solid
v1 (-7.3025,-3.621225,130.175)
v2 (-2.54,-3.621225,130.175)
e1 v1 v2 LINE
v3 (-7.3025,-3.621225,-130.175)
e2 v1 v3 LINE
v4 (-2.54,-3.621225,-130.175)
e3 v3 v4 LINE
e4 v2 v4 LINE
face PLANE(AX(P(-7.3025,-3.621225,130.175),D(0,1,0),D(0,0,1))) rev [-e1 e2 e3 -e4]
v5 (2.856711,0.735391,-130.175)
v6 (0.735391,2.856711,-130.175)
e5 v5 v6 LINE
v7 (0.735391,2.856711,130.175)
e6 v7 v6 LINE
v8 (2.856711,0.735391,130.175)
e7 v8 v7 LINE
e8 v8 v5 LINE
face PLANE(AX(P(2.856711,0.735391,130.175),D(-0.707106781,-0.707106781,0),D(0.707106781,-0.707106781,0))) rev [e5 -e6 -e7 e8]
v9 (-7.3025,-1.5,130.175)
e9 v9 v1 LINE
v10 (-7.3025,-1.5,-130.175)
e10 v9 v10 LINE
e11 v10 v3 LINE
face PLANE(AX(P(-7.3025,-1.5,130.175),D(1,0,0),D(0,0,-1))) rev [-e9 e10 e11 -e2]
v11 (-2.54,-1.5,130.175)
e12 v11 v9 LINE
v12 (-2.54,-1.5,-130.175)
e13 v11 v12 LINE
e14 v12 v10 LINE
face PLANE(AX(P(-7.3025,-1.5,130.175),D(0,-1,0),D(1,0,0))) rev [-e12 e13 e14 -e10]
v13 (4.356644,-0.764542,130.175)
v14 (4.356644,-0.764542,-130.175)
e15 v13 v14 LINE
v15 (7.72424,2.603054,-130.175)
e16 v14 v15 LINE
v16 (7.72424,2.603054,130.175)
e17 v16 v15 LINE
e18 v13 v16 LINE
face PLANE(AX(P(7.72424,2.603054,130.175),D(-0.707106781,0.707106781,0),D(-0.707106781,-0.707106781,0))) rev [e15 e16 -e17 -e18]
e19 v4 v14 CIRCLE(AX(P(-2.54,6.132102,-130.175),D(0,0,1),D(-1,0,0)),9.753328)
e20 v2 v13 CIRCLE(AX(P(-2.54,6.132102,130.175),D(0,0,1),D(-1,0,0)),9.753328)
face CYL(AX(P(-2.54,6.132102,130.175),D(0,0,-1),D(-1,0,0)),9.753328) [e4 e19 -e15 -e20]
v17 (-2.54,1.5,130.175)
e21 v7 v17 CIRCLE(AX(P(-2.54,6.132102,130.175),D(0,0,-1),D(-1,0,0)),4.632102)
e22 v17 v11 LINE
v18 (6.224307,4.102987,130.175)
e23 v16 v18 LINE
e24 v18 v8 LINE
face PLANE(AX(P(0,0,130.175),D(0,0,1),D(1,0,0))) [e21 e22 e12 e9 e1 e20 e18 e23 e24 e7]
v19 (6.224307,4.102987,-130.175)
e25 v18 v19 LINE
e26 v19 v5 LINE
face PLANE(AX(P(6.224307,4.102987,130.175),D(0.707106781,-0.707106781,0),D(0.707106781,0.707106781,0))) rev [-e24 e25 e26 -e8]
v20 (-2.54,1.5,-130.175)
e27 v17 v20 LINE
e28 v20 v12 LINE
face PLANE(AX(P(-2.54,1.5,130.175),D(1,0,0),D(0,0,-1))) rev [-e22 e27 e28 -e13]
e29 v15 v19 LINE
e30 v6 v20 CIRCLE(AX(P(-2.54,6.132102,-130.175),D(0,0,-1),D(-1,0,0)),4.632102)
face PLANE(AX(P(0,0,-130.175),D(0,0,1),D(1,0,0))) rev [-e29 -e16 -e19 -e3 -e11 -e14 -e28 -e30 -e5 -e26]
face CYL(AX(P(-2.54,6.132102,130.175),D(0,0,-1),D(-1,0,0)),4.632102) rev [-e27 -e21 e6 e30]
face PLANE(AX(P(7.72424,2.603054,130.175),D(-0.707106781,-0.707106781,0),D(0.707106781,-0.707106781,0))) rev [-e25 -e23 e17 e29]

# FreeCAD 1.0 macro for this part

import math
import FreeCAD as App
import Part
import Sketcher
from FreeCAD import Vector
Q = App.Units.Quantity

doc = App.newDocument("Part")
body = doc.addObject("PartDesign::Body", "Body")

# Sketch on XY plane
sketch1 = body.newObject("Sketcher::SketchObject", "Sketch")
sketch1.AttachmentSupport = (doc.getObject("XY_Plane"), [""])
sketch1.MapMode = "FlatFace"
sketch1.addGeometry(Part.LineSegment(Vector(-7.3, -1.5, 0), Vector(-7.3, -3.6, 0)), False)
sketch1.addGeometry(Part.LineSegment(Vector(-7.3, -3.6, 0), Vector(-2.5, -3.6, 0)), False)
sketch1.addGeometry(Part.LineSegment(Vector(-2.5, -3.6, 0), Vector(-2.5, -1.5, 0)), False)
sketch1.addGeometry(Part.LineSegment(Vector(-2.5, -1.5, 0), Vector(-7.3, -1.5, 0)), False)
sketch1.addConstraint(Sketcher.Constraint("Coincident", 0, 2, 1, 1))
sketch1.addConstraint(Sketcher.Constraint("Coincident", 1, 2, 2, 1))
sketch1.addConstraint(Sketcher.Constraint("Coincident", 2, 2, 3, 1))
sketch1.addConstraint(Sketcher.Constraint("Coincident", 3, 2, 0, 1))
sketch1.addConstraint(Sketcher.Constraint("Vertical", 0))
sketch1.addConstraint(Sketcher.Constraint("Horizontal", 1))
sketch1.addConstraint(Sketcher.Constraint("Vertical", 2))
sketch1.addConstraint(Sketcher.Constraint("Horizontal", 3))
sketch1.addConstraint(Sketcher.Constraint("DistanceX", 1, 2, -1, 1, Q("0.1 in")))
sketch1.addConstraint(Sketcher.Constraint("DistanceX", 1, 1, 1, 2, Q("0.1875 in")))
sketch1.addConstraint(Sketcher.Constraint("DistanceY", 2, 2, -1, 1, Q("1.5 mm")))
sketch1.addConstraint(Sketcher.Constraint("DistanceY", 0, 2, 0, 1, Q("2.121225 mm")))
pad1 = body.newObject("PartDesign::Pad", "Pad")
pad1.Profile = sketch1
pad1.Length = Q("10.25 in")
pad1.Midplane = True
body2 = doc.addObject("PartDesign::Body", "Body001")

# Sketch on XY plane
sketch2 = body2.newObject("Sketcher::SketchObject", "Sketch001")
sketch2.AttachmentSupport = (doc.getObject("XY_Plane001"), [""])
sketch2.MapMode = "FlatFace"
sketch2.addGeometry(Part.LineSegment(Vector(6.2, 4.1, 0), Vector(2.9, 0.7, 0)), False)
sketch2.addGeometry(Part.LineSegment(Vector(2.9, 0.7, 0), Vector(4.4, -0.8, 0)), False)
sketch2.addGeometry(Part.LineSegment(Vector(4.4, -0.8, 0), Vector(7.7, 2.6, 0)), False)
sketch2.addGeometry(Part.LineSegment(Vector(7.7, 2.6, 0), Vector(6.2, 4.1, 0)), False)
sketch2.addConstraint(Sketcher.Constraint("Coincident", 0, 2, 1, 1))
sketch2.addConstraint(Sketcher.Constraint("Coincident", 1, 2, 2, 1))
sketch2.addConstraint(Sketcher.Constraint("Coincident", 2, 2, 3, 1))
sketch2.addConstraint(Sketcher.Constraint("Coincident", 3, 2, 0, 1))
sketch2.addConstraint(Sketcher.Constraint("Perpendicular", 0, 1))
sketch2.addConstraint(Sketcher.Constraint("Perpendicular", 1, 2))
sketch2.addConstraint(Sketcher.Constraint("Perpendicular", 2, 3))
sketch2.addConstraint(Sketcher.Constraint("Angle", 0, Q("-135 deg")))
sketch2.addConstraint(Sketcher.Constraint("Distance", 0, Q("0.1875 in")))
sketch2.addConstraint(Sketcher.Constraint("DistanceY", 1, 2, -1, 1, Q("0.0301001 in")))
sketch2.addConstraint(Sketcher.Constraint("DistanceX", -1, 1, 0, 2, Q("2.856711 mm")))
sketch2.addConstraint(Sketcher.Constraint("DistanceY", -1, 1, 0, 2, Q("0.735391 mm")))
pad2 = body2.newObject("PartDesign::Pad", "Pad001")
pad2.Profile = sketch2
pad2.Length = Q("10.25 in")
pad2.Midplane = True
body.AllowCompound = True
doc.recompute()

boolean = body.newObject("PartDesign::Boolean", "Boolean")
boolean.Type = "Fuse"
boolean.addObjects([body2])

# Sketch on XY plane
sketch3 = body.newObject("Sketcher::SketchObject", "Sketch002")
sketch3.AttachmentSupport = (doc.getObject("XY_Plane"), [""])
sketch3.MapMode = "FlatFace"
sketch3.addGeometry(Part.LineSegment(Vector(-2.5, -1.5, 0), Vector(-7.3, -1.5, 0)), False)
sketch3.addGeometry(Part.LineSegment(Vector(-7.3, -1.5, 0), Vector(-7.3, -3.6, 0)), False)
sketch3.addGeometry(Part.LineSegment(Vector(-7.3, -3.6, 0), Vector(-2.5, -3.6, 0)), False)
sketch3.addGeometry(Part.ArcOfCircle(Part.Circle(Vector(-2.5, 6.1, 0), Vector(0, 0, 1), 9.8), math.radians(-90), math.radians(-45)), False)
sketch3.addGeometry(Part.LineSegment(Vector(4.4, -0.8, 0), Vector(7.7, 2.6, 0)), False)
sketch3.addGeometry(Part.LineSegment(Vector(7.7, 2.6, 0), Vector(6.2, 4.1, 0)), False)
sketch3.addGeometry(Part.LineSegment(Vector(6.2, 4.1, 0), Vector(2.9, 0.7, 0)), False)
sketch3.addGeometry(Part.LineSegment(Vector(2.9, 0.7, 0), Vector(0.7, 2.9, 0)), False)
sketch3.addGeometry(Part.ArcOfCircle(Part.Circle(Vector(-2.5, 6.1, 0), Vector(0, 0, 1), 4.6), math.radians(-90), math.radians(-45)), False)
sketch3.addGeometry(Part.LineSegment(Vector(-2.5, 1.5, 0), Vector(-2.5, -1.5, 0)), False)
sketch3.addConstraint(Sketcher.Constraint("Coincident", 0, 2, 1, 1))
sketch3.addConstraint(Sketcher.Constraint("Coincident", 1, 2, 2, 1))
sketch3.addConstraint(Sketcher.Constraint("Tangent", 2, 2, 3, 1))
sketch3.addConstraint(Sketcher.Constraint("Tangent", 3, 2, 4, 1))
sketch3.addConstraint(Sketcher.Constraint("Coincident", 4, 2, 5, 1))
sketch3.addConstraint(Sketcher.Constraint("Coincident", 5, 2, 6, 1))
sketch3.addConstraint(Sketcher.Constraint("Coincident", 6, 2, 7, 1))
sketch3.addConstraint(Sketcher.Constraint("Coincident", 7, 2, 8, 2))
sketch3.addConstraint(Sketcher.Constraint("Coincident", 8, 1, 9, 1))
sketch3.addConstraint(Sketcher.Constraint("Coincident", 9, 2, 0, 1))
sketch3.addConstraint(Sketcher.Constraint("Horizontal", 0))
sketch3.addConstraint(Sketcher.Constraint("Vertical", 1))
sketch3.addConstraint(Sketcher.Constraint("Horizontal", 2))
sketch3.addConstraint(Sketcher.Constraint("Vertical", 9))
sketch3.addConstraint(Sketcher.Constraint("Coincident", 8, 3, 3, 3))
sketch3.addConstraint(Sketcher.Constraint("Perpendicular", 4, 5))
sketch3.addConstraint(Sketcher.Constraint("Perpendicular", 5, 6))
sketch3.addConstraint(Sketcher.Constraint("Perpendicular", 6, 7))
sketch3.addConstraint(Sketcher.Constraint("Vertical", 2, 2, 8, 1))
sketch3.addConstraint(Sketcher.Constraint("Equal", 4, 6))
sketch3.addConstraint(Sketcher.Constraint("Angle", 4, Q("45 deg")))
sketch3.addConstraint(Sketcher.Constraint("DistanceX", 3, 3, -1, 1, Q("0.1 in")))
sketch3.addConstraint(Sketcher.Constraint("DistanceX", 0, 2, 0, 1, Q("0.1875 in")))
sketch3.addConstraint(Sketcher.Constraint("Distance", 4, Q("0.1875 in")))
sketch3.addConstraint(Sketcher.Constraint("DistanceY", 9, 2, 9, 1, Q("3 mm")))
sketch3.addConstraint(Sketcher.Constraint("DistanceY", 3, 2, -1, 1, Q("0.0301001 in")))
sketch3.addConstraint(Sketcher.Constraint("Radius", 3, Q("9.753328 mm")))
sketch3.addConstraint(Sketcher.Constraint("Radius", 8, Q("4.632102 mm")))
sketch3.addConstraint(Sketcher.Constraint("Distance", 7, Q("3 mm")))
pad3 = body.newObject("PartDesign::Pad", "Pad002")
pad3.Profile = sketch3
pad3.Length = Q("10.25 in")
pad3.Midplane = True

doc.recompute()
